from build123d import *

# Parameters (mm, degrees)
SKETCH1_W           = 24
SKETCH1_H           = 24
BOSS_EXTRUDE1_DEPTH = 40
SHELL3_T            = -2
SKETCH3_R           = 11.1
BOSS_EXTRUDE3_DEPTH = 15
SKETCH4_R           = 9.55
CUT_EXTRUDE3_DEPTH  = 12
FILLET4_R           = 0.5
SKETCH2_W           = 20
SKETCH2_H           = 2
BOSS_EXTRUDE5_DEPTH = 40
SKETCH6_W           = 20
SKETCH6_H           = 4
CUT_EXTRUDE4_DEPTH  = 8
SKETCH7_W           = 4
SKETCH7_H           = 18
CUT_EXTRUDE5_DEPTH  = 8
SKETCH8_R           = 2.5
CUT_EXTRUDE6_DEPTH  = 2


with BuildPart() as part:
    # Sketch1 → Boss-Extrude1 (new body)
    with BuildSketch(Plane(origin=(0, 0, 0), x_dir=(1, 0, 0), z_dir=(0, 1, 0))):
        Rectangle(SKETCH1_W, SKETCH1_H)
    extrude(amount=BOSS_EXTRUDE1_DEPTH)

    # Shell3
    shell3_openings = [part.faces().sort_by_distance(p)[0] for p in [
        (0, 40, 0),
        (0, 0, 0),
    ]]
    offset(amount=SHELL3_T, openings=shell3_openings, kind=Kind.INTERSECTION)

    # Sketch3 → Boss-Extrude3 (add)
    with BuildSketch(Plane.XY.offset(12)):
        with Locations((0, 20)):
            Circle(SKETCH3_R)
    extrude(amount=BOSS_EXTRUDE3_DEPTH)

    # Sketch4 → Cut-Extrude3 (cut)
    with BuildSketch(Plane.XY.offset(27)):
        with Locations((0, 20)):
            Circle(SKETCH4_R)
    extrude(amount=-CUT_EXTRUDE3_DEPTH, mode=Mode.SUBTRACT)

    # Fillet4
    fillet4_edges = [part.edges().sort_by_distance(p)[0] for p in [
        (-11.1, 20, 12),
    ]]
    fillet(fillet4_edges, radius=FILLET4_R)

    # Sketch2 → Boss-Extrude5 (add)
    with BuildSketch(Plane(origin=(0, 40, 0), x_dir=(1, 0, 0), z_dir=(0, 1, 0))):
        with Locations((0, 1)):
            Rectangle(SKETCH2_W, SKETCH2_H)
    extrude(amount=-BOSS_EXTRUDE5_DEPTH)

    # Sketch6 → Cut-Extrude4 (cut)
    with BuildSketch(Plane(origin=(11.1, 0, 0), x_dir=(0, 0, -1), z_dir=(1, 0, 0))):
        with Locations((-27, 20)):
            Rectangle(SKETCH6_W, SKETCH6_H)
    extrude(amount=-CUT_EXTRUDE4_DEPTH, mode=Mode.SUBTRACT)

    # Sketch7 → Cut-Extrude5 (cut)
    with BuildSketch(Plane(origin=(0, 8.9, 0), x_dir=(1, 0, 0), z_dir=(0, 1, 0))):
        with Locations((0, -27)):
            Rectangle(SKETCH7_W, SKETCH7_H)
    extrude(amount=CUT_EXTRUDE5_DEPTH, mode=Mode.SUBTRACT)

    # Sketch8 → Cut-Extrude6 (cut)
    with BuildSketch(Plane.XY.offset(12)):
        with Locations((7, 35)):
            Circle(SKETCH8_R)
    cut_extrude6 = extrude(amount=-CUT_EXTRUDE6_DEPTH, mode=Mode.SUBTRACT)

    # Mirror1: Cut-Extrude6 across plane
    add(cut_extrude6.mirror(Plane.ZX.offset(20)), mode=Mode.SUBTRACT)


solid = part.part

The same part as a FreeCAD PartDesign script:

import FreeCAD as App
import Part
import Sketcher

V = App.Vector


def edges_at(feature, points):
    """Names of the edges that pass closest to the given points."""
    edges = feature.Shape.Edges
    near = lambda p: min(range(len(edges)), key=lambda i: edges[i].distToShape(Part.Vertex(*p))[0])
    return sorted({f"Edge{near(p) + 1}" for p in points})


def faces_at(feature, points):
    """Names of the faces that lie closest to the given points."""
    faces = feature.Shape.Faces
    near = lambda p: min(range(len(faces)), key=lambda i: faces[i].distToShape(Part.Vertex(*p))[0])
    return sorted({f"Face{near(p) + 1}" for p in points})


def add_polygon(sketch, points):
    """Adds a closed chain of lines whose ends are joined by coincident constraints."""
    first, n = sketch.GeometryCount, len(points)
    for a, b in zip(points, points[1:] + points[:1]):
        sketch.addGeometry(Part.LineSegment(App.Vector(*a, 0), App.Vector(*b, 0)), False)
    for i in range(n):
        sketch.addConstraint(Sketcher.Constraint("Coincident", first + i, 2, first + (i + 1) % n, 1))

doc = App.newDocument("Part")
body = doc.addObject("PartDesign::Body", "Body")

# Sketch on XZ plane
sketch1 = body.newObject("Sketcher::SketchObject", "Sketch")
sketch1.AttachmentSupport = (doc.getObject("XZ_Plane"), [""])
sketch1.MapMode = "FlatFace"
add_polygon(sketch1, [(-12, -12), (-12, 12), (12, 12), (12, -12)])  # lines 0-3
sketch1.addConstraint(Sketcher.Constraint("Vertical", 0))
sketch1.addConstraint(Sketcher.Constraint("Horizontal", 1))
sketch1.addConstraint(Sketcher.Constraint("Vertical", 2))
sketch1.addConstraint(Sketcher.Constraint("Horizontal", 3))
sketch1.addConstraint(Sketcher.Constraint("Symmetric", 0, 2, 2, 2, -1, 1))
sketch1.addConstraint(Sketcher.Constraint("Equal", 3, 0))
sketch1.addConstraint(Sketcher.Constraint("DistanceX", 1, 1, 1, 2, 24.0))
pad1 = body.newObject("PartDesign::Pad", "Pad")
pad1.Profile = sketch1
pad1.Length = 40
pad1.Reversed = True
doc.recompute()

thickness = body.newObject("PartDesign::Thickness", "Thickness")
thickness.Base = (pad1, faces_at(pad1, [(0, 40, 0), (0, 0, 0)]))
thickness.Value = 2
thickness.Reversed = True
thickness.Join = "Intersection"

# Sketch on XY plane
sketch2 = body.newObject("Sketcher::SketchObject", "Sketch001")
sketch2.AttachmentSupport = (doc.getObject("XY_Plane"), [""])
sketch2.MapMode = "FlatFace"
sketch2.AttachmentOffset = App.Placement(V(0, 0, 12), App.Rotation())
sketch2.addGeometry(Part.Circle(V(0, 20, 0), V(0, 0, 1), 11), False)
sketch2.addConstraint(Sketcher.Constraint("PointOnObject", 0, 3, -2))
sketch2.addConstraint(Sketcher.Constraint("Diameter", 0, 22.2))
sketch2.addConstraint(Sketcher.Constraint("DistanceY", -1, 1, 0, 3, 20.0))
pad2 = body.newObject("PartDesign::Pad", "Pad001")
pad2.Profile = sketch2
pad2.Length = 15

# Sketch on XY plane
sketch3 = body.newObject("Sketcher::SketchObject", "Sketch002")
sketch3.AttachmentSupport = (doc.getObject("XY_Plane"), [""])
sketch3.MapMode = "FlatFace"
sketch3.AttachmentOffset = App.Placement(V(0, 0, 27), App.Rotation())
sketch3.addGeometry(Part.Circle(V(0, 20, 0), V(0, 0, 1), 10), False)
sketch3.addConstraint(Sketcher.Constraint("PointOnObject", 0, 3, -2))
sketch3.addConstraint(Sketcher.Constraint("Diameter", 0, 19.1))
sketch3.addConstraint(Sketcher.Constraint("DistanceY", -1, 1, 0, 3, 20.0))
pocket1 = body.newObject("PartDesign::Pocket", "Pocket")
pocket1.Profile = sketch3
pocket1.Length = 12
doc.recompute()

fillet = body.newObject("PartDesign::Fillet", "Fillet")
fillet.Base = (pocket1, edges_at(pocket1, [(-11.1, 20, 12)]))
fillet.Radius = 0.5

# Sketch on XZ plane
sketch4 = body.newObject("Sketcher::SketchObject", "Sketch003")
sketch4.AttachmentSupport = (doc.getObject("XZ_Plane"), [""])
sketch4.MapMode = "FlatFace"
sketch4.AttachmentOffset = App.Placement(V(0, 0, -40), App.Rotation())
add_polygon(sketch4, [(-10, -2), (-10, 0), (10, 0), (10, -2)])  # lines 0-3
sketch4.addConstraint(Sketcher.Constraint("Vertical", 0))
sketch4.addConstraint(Sketcher.Constraint("Horizontal", 1))
sketch4.addConstraint(Sketcher.Constraint("Vertical", 2))
sketch4.addConstraint(Sketcher.Constraint("Horizontal", 3))
sketch4.addConstraint(Sketcher.Constraint("Symmetric", 0, 2, 1, 2, -1, 1))
sketch4.addConstraint(Sketcher.Constraint("DistanceX", 1, 1, 1, 2, 20.0))
sketch4.addConstraint(Sketcher.Constraint("DistanceY", 0, 1, 0, 2, 2.0))
pad3 = body.newObject("PartDesign::Pad", "Pad002")
pad3.Profile = sketch4
pad3.Length = 40

# Sketch on YZ plane
sketch5 = body.newObject("Sketcher::SketchObject", "Sketch004")
sketch5.AttachmentSupport = (doc.getObject("YZ_Plane"), [""])
sketch5.MapMode = "FlatFace"
sketch5.AttachmentOffset = App.Placement(V(0, 0, 11.1), App.Rotation())
add_polygon(sketch5, [(22, 37), (18, 37), (18, 17), (22, 17)])  # lines 0-3
sketch5.addConstraint(Sketcher.Constraint("Horizontal", 0))
sketch5.addConstraint(Sketcher.Constraint("Vertical", 1))
sketch5.addConstraint(Sketcher.Constraint("Horizontal", 2))
sketch5.addConstraint(Sketcher.Constraint("Vertical", 3))
sketch5.addConstraint(Sketcher.Constraint("DistanceX", 0, 2, 0, 1, 4.0))
sketch5.addConstraint(Sketcher.Constraint("DistanceY", 1, 2, 1, 1, 20.0))
sketch5.addConstraint(Sketcher.Constraint("DistanceX", -1, 1, 0, 2, 18.0))
sketch5.addConstraint(Sketcher.Constraint("DistanceY", -1, 1, 0, 2, 37.0))
pocket2 = body.newObject("PartDesign::Pocket", "Pocket001")
pocket2.Profile = sketch5
pocket2.Length = 8

# Sketch on XZ plane
sketch6 = body.newObject("Sketcher::SketchObject", "Sketch005")
sketch6.AttachmentSupport = (doc.getObject("XZ_Plane"), [""])
sketch6.MapMode = "FlatFace"
sketch6.AttachmentOffset = App.Placement(V(0, 0, -8.9), App.Rotation())
add_polygon(sketch6, [(-2, 18), (-2, 36), (2, 36), (2, 18)])  # lines 0-3
sketch6.addConstraint(Sketcher.Constraint("Vertical", 0))
sketch6.addConstraint(Sketcher.Constraint("Horizontal", 1))
sketch6.addConstraint(Sketcher.Constraint("Vertical", 2))
sketch6.addConstraint(Sketcher.Constraint("Horizontal", 3))
sketch6.addConstraint(Sketcher.Constraint("DistanceX", 1, 1, 1, 2, 4.0))
sketch6.addConstraint(Sketcher.Constraint("DistanceY", 0, 1, 0, 2, 18.0))
sketch6.addConstraint(Sketcher.Constraint("DistanceX", 0, 2, -1, 1, 2.0))
sketch6.addConstraint(Sketcher.Constraint("DistanceY", -1, 1, 0, 2, 36.0))
pocket3 = body.newObject("PartDesign::Pocket", "Pocket002")
pocket3.Profile = sketch6
pocket3.Length = 8

# Sketch on XY plane
sketch7 = body.newObject("Sketcher::SketchObject", "Sketch006")
sketch7.AttachmentSupport = (doc.getObject("XY_Plane"), [""])
sketch7.MapMode = "FlatFace"
sketch7.AttachmentOffset = App.Placement(V(0, 0, 12), App.Rotation())
sketch7.addGeometry(Part.Circle(V(7, 35, 0), V(0, 0, 1), 2.5), False)
sketch7.addConstraint(Sketcher.Constraint("Diameter", 0, 5.0))
sketch7.addConstraint(Sketcher.Constraint("DistanceX", -1, 1, 0, 3, 7.0))
sketch7.addConstraint(Sketcher.Constraint("DistanceY", -1, 1, 0, 3, 35.0))
pocket4 = body.newObject("PartDesign::Pocket", "Pocket003")
pocket4.Profile = sketch7
pocket4.Length = 2
doc.recompute()

datumplane = body.newObject("PartDesign::Plane", "DatumPlane")
datumplane.AttachmentSupport = (doc.getObject("XZ_Plane"), [""])
datumplane.MapMode = "FlatFace"
datumplane.AttachmentOffset = App.Placement(V(0, 0, -20), App.Rotation())
mirrored = body.newObject("PartDesign::Mirrored", "Mirrored")
mirrored.Originals = [pocket4]
mirrored.MirrorPlane = (datumplane, [""])
body.Tip = mirrored

doc.recompute()
